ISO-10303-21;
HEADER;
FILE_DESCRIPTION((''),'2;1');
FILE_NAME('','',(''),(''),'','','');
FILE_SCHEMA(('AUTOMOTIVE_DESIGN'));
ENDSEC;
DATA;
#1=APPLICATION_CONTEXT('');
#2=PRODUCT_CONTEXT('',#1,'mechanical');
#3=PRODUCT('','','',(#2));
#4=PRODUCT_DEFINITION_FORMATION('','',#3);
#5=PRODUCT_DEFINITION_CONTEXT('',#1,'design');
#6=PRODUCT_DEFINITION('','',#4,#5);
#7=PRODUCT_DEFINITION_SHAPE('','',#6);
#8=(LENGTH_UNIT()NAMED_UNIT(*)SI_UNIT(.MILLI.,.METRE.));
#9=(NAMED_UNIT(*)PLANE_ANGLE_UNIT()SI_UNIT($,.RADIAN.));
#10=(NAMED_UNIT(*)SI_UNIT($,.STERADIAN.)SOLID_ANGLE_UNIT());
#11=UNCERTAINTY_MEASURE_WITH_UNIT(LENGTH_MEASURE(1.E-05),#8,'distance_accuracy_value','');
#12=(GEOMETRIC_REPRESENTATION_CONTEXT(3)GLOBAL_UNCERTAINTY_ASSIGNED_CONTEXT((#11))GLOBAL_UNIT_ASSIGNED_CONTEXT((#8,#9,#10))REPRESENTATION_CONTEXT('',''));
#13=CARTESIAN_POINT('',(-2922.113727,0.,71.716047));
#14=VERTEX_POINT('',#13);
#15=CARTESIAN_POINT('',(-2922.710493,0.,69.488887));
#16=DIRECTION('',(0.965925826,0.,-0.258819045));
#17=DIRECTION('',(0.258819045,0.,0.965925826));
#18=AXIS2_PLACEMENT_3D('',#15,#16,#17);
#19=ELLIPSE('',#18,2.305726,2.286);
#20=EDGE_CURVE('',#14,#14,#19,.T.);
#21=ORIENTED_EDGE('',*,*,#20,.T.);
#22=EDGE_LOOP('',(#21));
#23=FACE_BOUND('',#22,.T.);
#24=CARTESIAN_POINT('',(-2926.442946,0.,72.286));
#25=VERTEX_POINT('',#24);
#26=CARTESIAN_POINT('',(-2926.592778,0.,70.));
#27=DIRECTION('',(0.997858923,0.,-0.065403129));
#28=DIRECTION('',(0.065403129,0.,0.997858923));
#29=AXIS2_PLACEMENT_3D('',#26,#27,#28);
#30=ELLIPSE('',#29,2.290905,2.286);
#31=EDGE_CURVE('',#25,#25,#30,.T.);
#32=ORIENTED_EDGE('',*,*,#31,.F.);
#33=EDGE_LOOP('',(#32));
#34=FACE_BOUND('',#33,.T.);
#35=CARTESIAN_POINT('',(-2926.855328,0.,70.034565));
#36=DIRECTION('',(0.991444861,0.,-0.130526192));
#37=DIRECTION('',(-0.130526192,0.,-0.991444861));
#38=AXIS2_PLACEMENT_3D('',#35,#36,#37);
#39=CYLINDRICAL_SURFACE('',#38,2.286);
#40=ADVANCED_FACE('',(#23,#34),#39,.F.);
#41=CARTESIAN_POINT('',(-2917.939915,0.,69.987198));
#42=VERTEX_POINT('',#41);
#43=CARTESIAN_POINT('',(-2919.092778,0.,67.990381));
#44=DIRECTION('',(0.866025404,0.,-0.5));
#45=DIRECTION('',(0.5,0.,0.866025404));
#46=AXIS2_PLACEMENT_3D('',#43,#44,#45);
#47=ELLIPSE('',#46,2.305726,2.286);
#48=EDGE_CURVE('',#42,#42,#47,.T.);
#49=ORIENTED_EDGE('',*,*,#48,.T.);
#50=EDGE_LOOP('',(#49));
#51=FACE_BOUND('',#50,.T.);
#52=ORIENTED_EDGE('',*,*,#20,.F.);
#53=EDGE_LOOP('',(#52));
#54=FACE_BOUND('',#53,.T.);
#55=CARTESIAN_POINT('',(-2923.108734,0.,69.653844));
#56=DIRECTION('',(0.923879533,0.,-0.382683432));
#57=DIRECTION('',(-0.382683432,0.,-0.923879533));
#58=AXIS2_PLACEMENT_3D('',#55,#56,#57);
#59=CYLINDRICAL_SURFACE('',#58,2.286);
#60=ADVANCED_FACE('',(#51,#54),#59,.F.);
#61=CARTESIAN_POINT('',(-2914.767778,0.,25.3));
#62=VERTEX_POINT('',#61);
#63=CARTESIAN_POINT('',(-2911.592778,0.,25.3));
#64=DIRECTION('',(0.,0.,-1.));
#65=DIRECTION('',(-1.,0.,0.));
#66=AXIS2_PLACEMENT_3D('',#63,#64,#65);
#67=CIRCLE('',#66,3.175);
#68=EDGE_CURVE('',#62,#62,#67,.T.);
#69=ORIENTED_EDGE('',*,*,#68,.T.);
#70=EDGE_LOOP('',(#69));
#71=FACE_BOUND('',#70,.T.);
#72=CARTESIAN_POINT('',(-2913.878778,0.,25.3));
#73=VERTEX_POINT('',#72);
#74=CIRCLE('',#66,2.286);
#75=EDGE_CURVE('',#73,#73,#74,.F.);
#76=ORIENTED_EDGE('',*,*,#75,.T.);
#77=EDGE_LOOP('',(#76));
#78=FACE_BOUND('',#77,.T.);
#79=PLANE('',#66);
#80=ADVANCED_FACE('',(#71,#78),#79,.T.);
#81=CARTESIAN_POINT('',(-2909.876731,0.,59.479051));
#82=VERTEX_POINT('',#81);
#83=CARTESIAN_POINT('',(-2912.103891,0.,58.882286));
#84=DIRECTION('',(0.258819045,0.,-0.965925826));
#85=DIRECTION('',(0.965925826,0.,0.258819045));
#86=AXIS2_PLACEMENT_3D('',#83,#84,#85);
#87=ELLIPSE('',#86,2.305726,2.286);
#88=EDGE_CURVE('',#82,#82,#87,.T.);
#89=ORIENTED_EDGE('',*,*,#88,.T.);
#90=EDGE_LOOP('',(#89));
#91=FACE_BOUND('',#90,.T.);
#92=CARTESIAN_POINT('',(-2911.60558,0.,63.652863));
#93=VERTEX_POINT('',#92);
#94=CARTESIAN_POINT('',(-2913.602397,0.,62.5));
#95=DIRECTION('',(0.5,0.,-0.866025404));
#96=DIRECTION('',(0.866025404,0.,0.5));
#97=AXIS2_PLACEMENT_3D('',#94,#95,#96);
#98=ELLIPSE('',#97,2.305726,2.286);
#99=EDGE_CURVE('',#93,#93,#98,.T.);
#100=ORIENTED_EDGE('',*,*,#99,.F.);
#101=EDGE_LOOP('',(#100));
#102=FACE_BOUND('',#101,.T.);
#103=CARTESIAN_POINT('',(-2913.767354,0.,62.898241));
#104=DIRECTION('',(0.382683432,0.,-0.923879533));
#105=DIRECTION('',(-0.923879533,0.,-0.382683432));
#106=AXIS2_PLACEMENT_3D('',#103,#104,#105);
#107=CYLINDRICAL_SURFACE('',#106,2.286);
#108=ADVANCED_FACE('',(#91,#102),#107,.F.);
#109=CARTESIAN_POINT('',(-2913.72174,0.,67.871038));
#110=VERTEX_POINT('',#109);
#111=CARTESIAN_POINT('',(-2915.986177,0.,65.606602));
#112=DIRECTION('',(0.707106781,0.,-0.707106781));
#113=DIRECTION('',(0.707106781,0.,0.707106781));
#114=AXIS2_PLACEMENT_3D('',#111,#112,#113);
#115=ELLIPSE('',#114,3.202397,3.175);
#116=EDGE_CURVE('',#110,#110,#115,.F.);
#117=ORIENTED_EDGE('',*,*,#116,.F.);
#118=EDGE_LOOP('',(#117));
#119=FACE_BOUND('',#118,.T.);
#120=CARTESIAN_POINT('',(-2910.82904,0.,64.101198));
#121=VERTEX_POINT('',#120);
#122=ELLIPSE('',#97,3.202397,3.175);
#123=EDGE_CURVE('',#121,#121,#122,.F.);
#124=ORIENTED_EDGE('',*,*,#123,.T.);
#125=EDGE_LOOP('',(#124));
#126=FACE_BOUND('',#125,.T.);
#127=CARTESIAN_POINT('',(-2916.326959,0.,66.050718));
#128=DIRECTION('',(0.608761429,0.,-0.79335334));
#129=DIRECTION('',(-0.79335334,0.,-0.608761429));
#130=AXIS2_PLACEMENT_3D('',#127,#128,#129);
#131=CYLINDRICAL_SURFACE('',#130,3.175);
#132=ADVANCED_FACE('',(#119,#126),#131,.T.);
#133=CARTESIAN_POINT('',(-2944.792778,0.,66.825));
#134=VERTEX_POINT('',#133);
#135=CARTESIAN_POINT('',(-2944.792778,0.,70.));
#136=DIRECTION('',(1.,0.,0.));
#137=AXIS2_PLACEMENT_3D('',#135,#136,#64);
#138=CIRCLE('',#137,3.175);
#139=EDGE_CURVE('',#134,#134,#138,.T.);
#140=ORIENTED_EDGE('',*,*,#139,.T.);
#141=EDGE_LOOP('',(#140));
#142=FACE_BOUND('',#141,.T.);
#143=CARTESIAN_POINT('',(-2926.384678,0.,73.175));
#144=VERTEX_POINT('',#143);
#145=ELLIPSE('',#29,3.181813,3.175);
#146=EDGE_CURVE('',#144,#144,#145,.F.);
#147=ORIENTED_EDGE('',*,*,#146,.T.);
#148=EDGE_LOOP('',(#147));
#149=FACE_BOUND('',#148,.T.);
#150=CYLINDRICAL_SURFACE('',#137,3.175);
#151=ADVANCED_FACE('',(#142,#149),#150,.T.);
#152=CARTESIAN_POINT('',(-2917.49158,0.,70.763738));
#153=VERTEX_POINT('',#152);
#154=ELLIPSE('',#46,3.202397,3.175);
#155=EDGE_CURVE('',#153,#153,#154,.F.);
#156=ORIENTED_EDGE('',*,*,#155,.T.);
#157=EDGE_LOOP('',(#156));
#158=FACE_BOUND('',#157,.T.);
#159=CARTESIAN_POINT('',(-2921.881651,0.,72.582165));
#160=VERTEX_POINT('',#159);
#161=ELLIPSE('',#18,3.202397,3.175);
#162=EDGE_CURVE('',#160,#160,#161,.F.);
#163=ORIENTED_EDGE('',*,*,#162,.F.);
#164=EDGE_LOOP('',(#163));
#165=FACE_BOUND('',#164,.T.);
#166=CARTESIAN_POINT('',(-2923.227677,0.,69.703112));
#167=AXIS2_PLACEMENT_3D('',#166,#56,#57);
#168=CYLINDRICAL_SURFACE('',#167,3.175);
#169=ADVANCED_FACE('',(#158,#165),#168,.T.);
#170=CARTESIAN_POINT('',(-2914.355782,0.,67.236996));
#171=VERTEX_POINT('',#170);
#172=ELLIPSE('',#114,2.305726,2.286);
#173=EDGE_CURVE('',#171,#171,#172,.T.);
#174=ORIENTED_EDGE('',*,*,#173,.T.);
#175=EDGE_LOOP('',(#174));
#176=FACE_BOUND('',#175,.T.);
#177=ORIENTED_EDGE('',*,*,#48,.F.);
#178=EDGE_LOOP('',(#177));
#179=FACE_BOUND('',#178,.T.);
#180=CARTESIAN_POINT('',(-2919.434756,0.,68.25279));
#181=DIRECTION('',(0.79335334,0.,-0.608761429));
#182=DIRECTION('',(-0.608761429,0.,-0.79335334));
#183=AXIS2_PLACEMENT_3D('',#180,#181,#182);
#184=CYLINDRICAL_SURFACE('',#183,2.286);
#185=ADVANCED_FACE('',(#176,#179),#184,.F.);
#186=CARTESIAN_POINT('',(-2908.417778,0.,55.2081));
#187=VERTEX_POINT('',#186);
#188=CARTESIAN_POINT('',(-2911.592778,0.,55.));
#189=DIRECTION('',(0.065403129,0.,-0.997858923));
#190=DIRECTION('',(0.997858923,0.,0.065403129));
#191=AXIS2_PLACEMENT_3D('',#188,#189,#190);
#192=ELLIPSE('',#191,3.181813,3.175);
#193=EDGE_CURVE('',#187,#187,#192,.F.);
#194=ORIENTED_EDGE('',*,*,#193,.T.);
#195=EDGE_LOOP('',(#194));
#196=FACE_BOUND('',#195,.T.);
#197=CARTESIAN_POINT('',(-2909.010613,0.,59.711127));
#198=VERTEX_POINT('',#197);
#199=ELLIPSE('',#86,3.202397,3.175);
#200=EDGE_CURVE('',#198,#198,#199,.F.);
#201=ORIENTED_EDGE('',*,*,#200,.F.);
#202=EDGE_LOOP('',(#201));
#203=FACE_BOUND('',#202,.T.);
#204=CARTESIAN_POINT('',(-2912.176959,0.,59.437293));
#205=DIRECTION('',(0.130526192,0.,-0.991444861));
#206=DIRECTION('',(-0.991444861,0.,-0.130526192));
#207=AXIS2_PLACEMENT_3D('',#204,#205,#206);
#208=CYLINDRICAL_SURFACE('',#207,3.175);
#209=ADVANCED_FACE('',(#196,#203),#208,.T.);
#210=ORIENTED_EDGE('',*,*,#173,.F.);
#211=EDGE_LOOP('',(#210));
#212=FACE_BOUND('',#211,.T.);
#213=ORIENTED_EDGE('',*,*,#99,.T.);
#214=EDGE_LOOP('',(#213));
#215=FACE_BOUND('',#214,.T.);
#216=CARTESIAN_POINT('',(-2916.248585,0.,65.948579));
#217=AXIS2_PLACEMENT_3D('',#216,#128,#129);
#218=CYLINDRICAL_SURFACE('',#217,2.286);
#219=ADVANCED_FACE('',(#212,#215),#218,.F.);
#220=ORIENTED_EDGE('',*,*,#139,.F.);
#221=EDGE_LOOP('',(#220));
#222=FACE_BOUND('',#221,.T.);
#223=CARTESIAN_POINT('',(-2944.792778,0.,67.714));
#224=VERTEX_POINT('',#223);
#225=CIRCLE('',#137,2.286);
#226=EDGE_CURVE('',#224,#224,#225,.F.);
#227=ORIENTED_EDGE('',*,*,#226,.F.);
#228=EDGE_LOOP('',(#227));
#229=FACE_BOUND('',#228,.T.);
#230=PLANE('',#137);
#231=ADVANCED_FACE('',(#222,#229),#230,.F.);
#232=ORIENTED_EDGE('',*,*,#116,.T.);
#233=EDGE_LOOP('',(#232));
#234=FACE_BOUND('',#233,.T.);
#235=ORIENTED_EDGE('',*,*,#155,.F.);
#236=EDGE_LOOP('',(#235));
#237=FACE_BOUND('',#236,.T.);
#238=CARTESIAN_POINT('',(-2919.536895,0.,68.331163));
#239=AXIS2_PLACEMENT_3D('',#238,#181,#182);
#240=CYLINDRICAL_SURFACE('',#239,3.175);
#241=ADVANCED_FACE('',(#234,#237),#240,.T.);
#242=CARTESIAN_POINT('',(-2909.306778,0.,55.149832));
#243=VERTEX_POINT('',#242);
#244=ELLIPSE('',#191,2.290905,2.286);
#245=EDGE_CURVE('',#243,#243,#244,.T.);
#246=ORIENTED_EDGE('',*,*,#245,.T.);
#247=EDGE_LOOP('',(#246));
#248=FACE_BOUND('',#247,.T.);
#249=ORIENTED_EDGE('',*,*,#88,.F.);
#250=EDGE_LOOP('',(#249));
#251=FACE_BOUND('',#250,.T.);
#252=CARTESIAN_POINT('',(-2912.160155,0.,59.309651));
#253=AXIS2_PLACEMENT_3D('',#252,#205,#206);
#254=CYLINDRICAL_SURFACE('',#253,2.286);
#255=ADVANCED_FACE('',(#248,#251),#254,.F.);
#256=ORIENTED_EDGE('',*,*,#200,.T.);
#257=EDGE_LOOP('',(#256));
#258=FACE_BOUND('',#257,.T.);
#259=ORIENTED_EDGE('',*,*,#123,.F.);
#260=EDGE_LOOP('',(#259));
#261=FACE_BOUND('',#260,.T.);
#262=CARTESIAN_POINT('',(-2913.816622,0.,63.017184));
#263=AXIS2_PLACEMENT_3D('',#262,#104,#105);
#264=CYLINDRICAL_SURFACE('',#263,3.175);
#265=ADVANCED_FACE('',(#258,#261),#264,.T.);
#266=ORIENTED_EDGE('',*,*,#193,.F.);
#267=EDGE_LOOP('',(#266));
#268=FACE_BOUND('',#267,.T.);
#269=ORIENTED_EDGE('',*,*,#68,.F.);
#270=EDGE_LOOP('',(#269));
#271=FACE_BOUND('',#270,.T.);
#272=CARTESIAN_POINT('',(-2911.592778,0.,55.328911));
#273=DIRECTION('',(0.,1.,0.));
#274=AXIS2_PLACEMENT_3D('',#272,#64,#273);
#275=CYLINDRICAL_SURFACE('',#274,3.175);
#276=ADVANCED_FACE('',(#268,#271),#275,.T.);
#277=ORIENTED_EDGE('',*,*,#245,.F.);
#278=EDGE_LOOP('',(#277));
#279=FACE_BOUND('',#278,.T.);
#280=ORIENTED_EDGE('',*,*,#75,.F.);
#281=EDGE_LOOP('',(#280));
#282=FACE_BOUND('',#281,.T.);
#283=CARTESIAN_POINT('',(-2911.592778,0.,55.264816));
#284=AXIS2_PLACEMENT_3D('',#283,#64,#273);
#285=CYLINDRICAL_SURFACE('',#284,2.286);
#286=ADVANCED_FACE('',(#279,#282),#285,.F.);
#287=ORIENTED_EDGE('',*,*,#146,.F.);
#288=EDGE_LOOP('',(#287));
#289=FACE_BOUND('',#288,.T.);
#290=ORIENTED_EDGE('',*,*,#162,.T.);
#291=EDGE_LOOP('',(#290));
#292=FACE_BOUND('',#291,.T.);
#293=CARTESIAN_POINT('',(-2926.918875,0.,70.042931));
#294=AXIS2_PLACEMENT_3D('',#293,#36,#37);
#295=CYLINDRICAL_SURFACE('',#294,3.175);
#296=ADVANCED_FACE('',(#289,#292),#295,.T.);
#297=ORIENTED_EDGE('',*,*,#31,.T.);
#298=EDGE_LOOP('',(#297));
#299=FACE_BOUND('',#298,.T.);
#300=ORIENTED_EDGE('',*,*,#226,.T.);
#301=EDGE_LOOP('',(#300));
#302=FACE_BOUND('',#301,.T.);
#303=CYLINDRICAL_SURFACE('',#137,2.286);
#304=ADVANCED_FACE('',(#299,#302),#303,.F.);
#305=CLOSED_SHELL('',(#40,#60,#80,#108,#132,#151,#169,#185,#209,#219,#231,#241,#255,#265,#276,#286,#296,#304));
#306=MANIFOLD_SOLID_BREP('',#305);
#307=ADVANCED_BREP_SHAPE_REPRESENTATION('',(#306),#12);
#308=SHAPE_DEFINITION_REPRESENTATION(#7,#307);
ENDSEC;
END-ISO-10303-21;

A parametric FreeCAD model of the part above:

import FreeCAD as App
import Part
import Sketcher
Q = App.Units.Quantity

doc = App.newDocument("Part")
params = doc.addObject("Spreadsheet::Sheet", "Params")
for row, (alias, value) in enumerate([
    ("sketch1_diameter", "6.35 mm"),
    ("sketch2_width", "18.2 mm"),
    ("sketch2_height", "29.7 mm"),
], start=1):
    params.set(f"A{row}", alias)
    params.set(f"B{row}", "=" + value)
    params.setAlias(f"B{row}", alias)

body = doc.addObject("PartDesign::Body", "Body")

sketch1 = body.newObject("Sketcher::SketchObject", "Sketch")
sketch1.AttachmentSupport = (doc.getObject("YZ_Plane"), [""])
sketch1.MapMode = "FlatFace"
sketch1.AttachmentOffset = App.Placement(App.Vector(0, 0, -2944.792778), App.Rotation())
sketch1.addGeometry(Part.Circle(App.Vector(0, 70, 0), App.Vector(0, 0, 1), 3.2), False)
sketch1.addGeometry(Part.Circle(App.Vector(0, 70, 0), App.Vector(0, 0, 1), 2.3), False)
sketch1.addConstraint(Sketcher.Constraint("Coincident", 1, 3, 0, 3))
sketch1.addConstraint(Sketcher.Constraint("PointOnObject", 0, 3, -2))
sketch1.addConstraint(Sketcher.Constraint("Diameter", 0, 6.35))
sketch1.addConstraint(Sketcher.Constraint("Diameter", 1, 4.572))
sketch1.addConstraint(Sketcher.Constraint("DistanceY", -1, 1, 0, 3, 70.0))
sketch1.setExpression("Constraints[2]", "Params.sketch1_diameter")

sketch2 = body.newObject("Sketcher::SketchObject", "Sketch001")
sketch2.AttachmentSupport = (doc.getObject("XZ_Plane"), [""])
sketch2.MapMode = "FlatFace"
sketch2.addGeometry(Part.LineSegment(App.Vector(-2944.8, 70, 0), App.Vector(-2926.6, 70, 0)), False)
sketch2.addGeometry(Part.LineSegment(App.Vector(-2926.6, 70, 0), App.Vector(-2922.7, 69.5, 0)), False)
sketch2.addGeometry(Part.LineSegment(App.Vector(-2922.7, 69.5, 0), App.Vector(-2919.1, 68, 0)), False)
sketch2.addGeometry(Part.LineSegment(App.Vector(-2919.1, 68, 0), App.Vector(-2916, 65.6, 0)), False)
sketch2.addGeometry(Part.LineSegment(App.Vector(-2916, 65.6, 0), App.Vector(-2913.6, 62.5, 0)), False)
sketch2.addGeometry(Part.LineSegment(App.Vector(-2913.6, 62.5, 0), App.Vector(-2912.1, 58.9, 0)), False)
sketch2.addGeometry(Part.LineSegment(App.Vector(-2912.1, 58.9, 0), App.Vector(-2911.6, 55, 0)), False)
sketch2.addGeometry(Part.LineSegment(App.Vector(-2911.6, 55, 0), App.Vector(-2911.6, 25.3, 0)), False)
sketch2.addConstraint(Sketcher.Constraint("Coincident", 0, 2, 1, 1))
sketch2.addConstraint(Sketcher.Constraint("Coincident", 1, 2, 2, 1))
sketch2.addConstraint(Sketcher.Constraint("Coincident", 2, 2, 3, 1))
sketch2.addConstraint(Sketcher.Constraint("Coincident", 3, 2, 4, 1))
sketch2.addConstraint(Sketcher.Constraint("Coincident", 4, 2, 5, 1))
sketch2.addConstraint(Sketcher.Constraint("Coincident", 5, 2, 6, 1))
sketch2.addConstraint(Sketcher.Constraint("Coincident", 6, 2, 7, 1))
sketch2.addConstraint(Sketcher.Constraint("Horizontal", 0))
sketch2.addConstraint(Sketcher.Constraint("Vertical", 7))
sketch2.addConstraint(Sketcher.Constraint("Equal", 1, 2))
sketch2.addConstraint(Sketcher.Constraint("Equal", 2, 3))
sketch2.addConstraint(Sketcher.Constraint("Equal", 3, 4))
sketch2.addConstraint(Sketcher.Constraint("Equal", 4, 5))
sketch2.addConstraint(Sketcher.Constraint("Equal", 5, 6))
sketch2.addConstraint(Sketcher.Constraint("DistanceX", 0, 1, 0, 2, 18.2))
sketch2.addConstraint(Sketcher.Constraint("DistanceY", 7, 2, 7, 1, 29.7))
sketch2.addConstraint(Sketcher.Constraint("DistanceY", -1, 1, 0, 1, 70.0))
sketch2.addConstraint(Sketcher.Constraint("DistanceY", -1, 1, 6, 2, 55.0))
sketch2.addConstraint(Sketcher.Constraint("Angle", 1, Q("-7.5 deg")))
sketch2.addConstraint(Sketcher.Constraint("Angle", 2, Q("-22.5 deg")))
sketch2.addConstraint(Sketcher.Constraint("Angle", 3, Q("-37.5 deg")))
sketch2.addConstraint(Sketcher.Constraint("Angle", 4, Q("-52.5 deg")))
sketch2.addConstraint(Sketcher.Constraint("Angle", 5, Q("-67.5 deg")))
sketch2.addConstraint(Sketcher.Constraint("Angle", 6, Q("-82.5 deg")))
sketch2.addConstraint(Sketcher.Constraint("DistanceX", 0, 1, -1, 1, 2944.792778))
sketch2.setExpression("Constraints[14]", "Params.sketch2_width")
sketch2.setExpression("Constraints[15]", "Params.sketch2_height")
doc.recompute()

additivepipe = body.newObject("PartDesign::AdditivePipe", "AdditivePipe")
additivepipe.Profile = sketch1
additivepipe.Spine = (sketch2, ["Edge1", "Edge2", "Edge3", "Edge4", "Edge5", "Edge6", "Edge7", "Edge8"])
additivepipe.Transition = "Right corner"

doc.recompute()
